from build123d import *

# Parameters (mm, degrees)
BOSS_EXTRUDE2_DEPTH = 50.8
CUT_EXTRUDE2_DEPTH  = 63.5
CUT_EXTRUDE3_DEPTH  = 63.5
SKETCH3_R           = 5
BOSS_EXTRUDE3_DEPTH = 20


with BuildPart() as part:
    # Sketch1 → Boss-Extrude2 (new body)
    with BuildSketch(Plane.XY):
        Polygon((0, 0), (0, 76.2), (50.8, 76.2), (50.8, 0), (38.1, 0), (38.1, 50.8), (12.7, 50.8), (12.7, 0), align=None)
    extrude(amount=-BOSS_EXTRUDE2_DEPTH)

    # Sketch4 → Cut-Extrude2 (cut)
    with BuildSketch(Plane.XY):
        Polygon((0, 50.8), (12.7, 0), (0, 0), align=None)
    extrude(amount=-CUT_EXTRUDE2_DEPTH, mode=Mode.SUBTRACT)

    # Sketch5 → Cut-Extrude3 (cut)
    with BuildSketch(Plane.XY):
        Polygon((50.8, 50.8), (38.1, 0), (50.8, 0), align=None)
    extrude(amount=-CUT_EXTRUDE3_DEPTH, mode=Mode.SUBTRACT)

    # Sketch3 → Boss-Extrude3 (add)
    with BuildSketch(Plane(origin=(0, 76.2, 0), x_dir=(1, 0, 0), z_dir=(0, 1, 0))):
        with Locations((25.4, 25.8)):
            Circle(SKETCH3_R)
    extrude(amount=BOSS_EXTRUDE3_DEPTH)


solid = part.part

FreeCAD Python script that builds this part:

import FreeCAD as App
import Part
import Sketcher
from FreeCAD import Vector
Q = App.Units.Quantity


def add_polygon(sketch, points):
    """Adds a closed chain of lines whose ends are joined by coincident constraints."""
    first, n = sketch.GeometryCount, len(points)
    for a, b in zip(points, points[1:] + points[:1]):
        sketch.addGeometry(Part.LineSegment(App.Vector(*a, 0), App.Vector(*b, 0)), False)
    for i in range(n):
        sketch.addConstraint(Sketcher.Constraint("Coincident", first + i, 2, first + (i + 1) % n, 1))

doc = App.newDocument("Part")
params = doc.addObject("Spreadsheet::Sheet", "Params")
for row, (alias, value) in enumerate([
    ("sketch1_width", "1 in"),
    ("sketch1_width2", "2 in"),
    ("sketch1_height", "3 in"),
    ("pad1_length", "2 in"),
    ("sketch2_height", "2 in"),
    ("sketch2_width", "0.5 in"),
    ("pocket1_length", "2.5 in"),
    ("sketch3_height", "2 in"),
    ("sketch3_width", "0.5 in"),
    ("pocket2_length", "2.5 in"),
    ("pad2_length", "20 mm"),
], start=1):
    params.set(f"A{row}", alias)
    params.set(f"B{row}", "=" + value)
    params.setAlias(f"B{row}", alias)

body = doc.addObject("PartDesign::Body", "Body")

# Sketch on XY plane
sketch1 = doc.addObject("Sketcher::SketchObject", "Sketch")
body.addObject(sketch1)
sketch1.AttachmentSupport = (doc.XY_Plane, [""])
sketch1.MapMode = "FlatFace"
add_polygon(sketch1, [(0, 76), (0, 0), (13, 0), (13, 51), (38, 51), (38, 0), (51, 0), (51, 76)])  # lines 0-7
sketch1.addConstraint([
    Sketcher.Constraint("Vertical", 0),
    Sketcher.Constraint("Horizontal", 1),
    Sketcher.Constraint("Vertical", 2),
    Sketcher.Constraint("Horizontal", 3),
    Sketcher.Constraint("Vertical", 4),
    Sketcher.Constraint("Horizontal", 5),
    Sketcher.Constraint("Vertical", 6),
    Sketcher.Constraint("Horizontal", 7),
    Sketcher.Constraint("Coincident", 0, 2, -1, 1),
    Sketcher.Constraint("PointOnObject", 4, 2, -1),
    Sketcher.Constraint("Equal", 1, 5),
    Sketcher.Constraint("Equal", 7, 2),
    Sketcher.Constraint("DistanceX", 3, 1, 3, 2, Q("1 in")),
    Sketcher.Constraint("DistanceX", 7, 2, 7, 1, Q("2 in")),
    Sketcher.Constraint("DistanceY", 0, 2, 0, 1, Q("3 in")),
])
sketch1.setExpression("Constraints[20]", "Params.sketch1_width")
sketch1.setExpression("Constraints[21]", "Params.sketch1_width2")
sketch1.setExpression("Constraints[22]", "Params.sketch1_height")
pad1 = doc.addObject("PartDesign::Pad", "Pad")
body.addObject(pad1)
pad1.Profile = sketch1
pad1.setExpression("Length", "Params.pad1_length")
pad1.Reversed = True

# Sketch on XY plane
sketch2 = doc.addObject("Sketcher::SketchObject", "Sketch001")
body.addObject(sketch2)
sketch2.AttachmentSupport = (doc.XY_Plane, [""])
sketch2.MapMode = "FlatFace"
add_polygon(sketch2, [(13, 0), (0, 51), (0, 0)])  # lines 0-2
sketch2.addConstraint([
    Sketcher.Constraint("Vertical", 1),
    Sketcher.Constraint("Horizontal", 2),
    Sketcher.Constraint("Coincident", 1, 2, -1, 1),
    Sketcher.Constraint("DistanceY", 1, 2, 1, 1, Q("2 in")),
    Sketcher.Constraint("DistanceX", 2, 1, 2, 2, Q("0.5 in")),
])
sketch2.setExpression("Constraints[6]", "Params.sketch2_height")
sketch2.setExpression("Constraints[7]", "Params.sketch2_width")
pocket1 = doc.addObject("PartDesign::Pocket", "Pocket")
body.addObject(pocket1)
pocket1.Profile = sketch2
pocket1.setExpression("Length", "Params.pocket1_length")

# Sketch on XY plane
sketch3 = doc.addObject("Sketcher::SketchObject", "Sketch002")
body.addObject(sketch3)
sketch3.AttachmentSupport = (doc.XY_Plane, [""])
sketch3.MapMode = "FlatFace"
add_polygon(sketch3, [(51, 51), (38, 0), (51, 0)])  # lines 0-2
sketch3.addConstraint([
    Sketcher.Constraint("Horizontal", 1),
    Sketcher.Constraint("Vertical", 2),
    Sketcher.Constraint("PointOnObject", 0, 2, -1),
    Sketcher.Constraint("DistanceY", 2, 1, 2, 2, Q("2 in")),
    Sketcher.Constraint("DistanceX", 1, 1, 1, 2, Q("0.5 in")),
    Sketcher.Constraint("DistanceX", -1, 1, 1, 2, Q("2 in")),
])
sketch3.setExpression("Constraints[6]", "Params.sketch3_height")
sketch3.setExpression("Constraints[7]", "Params.sketch3_width")
pocket2 = doc.addObject("PartDesign::Pocket", "Pocket001")
body.addObject(pocket2)
pocket2.Profile = sketch3
pocket2.setExpression("Length", "Params.pocket2_length")

# Sketch on XZ plane
sketch4 = doc.addObject("Sketcher::SketchObject", "Sketch003")
body.addObject(sketch4)
sketch4.AttachmentSupport = (doc.XZ_Plane, [""])
sketch4.MapMode = "FlatFace"
sketch4.AttachmentOffset = App.Placement(Vector(0, 0, -3 * 25.4), App.Rotation())
sketch4.addGeometry(Part.Circle(Vector(25, -26, 0), Vector(0, 0, 1), 5), False)
sketch4.addConstraint([
    Sketcher.Constraint("DistanceX", -1, 1, 0, 3, Q("1 in")),
    Sketcher.Constraint("Diameter", 0, Q("10 mm")),
    Sketcher.Constraint("DistanceY", 0, 3, -1, 1, Q("25.8 mm")),
])
pad2 = doc.addObject("PartDesign::Pad", "Pad001")
body.addObject(pad2)
pad2.Profile = sketch4
pad2.setExpression("Length", "Params.pad2_length")
pad2.Reversed = True

doc.recompute()
